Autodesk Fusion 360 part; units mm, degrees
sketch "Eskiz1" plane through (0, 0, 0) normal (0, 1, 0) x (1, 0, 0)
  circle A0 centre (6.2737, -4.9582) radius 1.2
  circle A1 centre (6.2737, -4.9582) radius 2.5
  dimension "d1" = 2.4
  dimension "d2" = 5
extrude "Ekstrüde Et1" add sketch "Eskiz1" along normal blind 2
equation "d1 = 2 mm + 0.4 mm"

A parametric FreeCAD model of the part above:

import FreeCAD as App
import Part
import Sketcher

V = App.Vector

doc = App.newDocument("Part")
body = doc.addObject("PartDesign::Body", "Body")

sketch1 = body.newObject("Sketcher::SketchObject", "Sketch")
sketch1.AttachmentSupport = (doc.getObject("XZ_Plane"), [""])
sketch1.MapMode = "FlatFace"
sketch1.addGeometry(Part.Circle(V(6.3, 5, 0), V(0, 0, 1), 2.5), False)
sketch1.addGeometry(Part.Circle(V(6.3, 5, 0), V(0, 0, 1), 1.2), False)
sketch1.addConstraint(Sketcher.Constraint("Coincident", 1, 3, 0, 3))
sketch1.addConstraint(Sketcher.Constraint("Diameter", 0, 5.0))
sketch1.addConstraint(Sketcher.Constraint("Diameter", 1, 2.4))
sketch1.addConstraint(Sketcher.Constraint("DistanceX", -1, 1, 0, 3, 6.2737))
sketch1.addConstraint(Sketcher.Constraint("DistanceY", -1, 1, 0, 3, 4.9582))
pad1 = body.newObject("PartDesign::Pad", "Pad")
pad1.Profile = sketch1
pad1.Length = 2
pad1.Reversed = True

doc.recompute()
